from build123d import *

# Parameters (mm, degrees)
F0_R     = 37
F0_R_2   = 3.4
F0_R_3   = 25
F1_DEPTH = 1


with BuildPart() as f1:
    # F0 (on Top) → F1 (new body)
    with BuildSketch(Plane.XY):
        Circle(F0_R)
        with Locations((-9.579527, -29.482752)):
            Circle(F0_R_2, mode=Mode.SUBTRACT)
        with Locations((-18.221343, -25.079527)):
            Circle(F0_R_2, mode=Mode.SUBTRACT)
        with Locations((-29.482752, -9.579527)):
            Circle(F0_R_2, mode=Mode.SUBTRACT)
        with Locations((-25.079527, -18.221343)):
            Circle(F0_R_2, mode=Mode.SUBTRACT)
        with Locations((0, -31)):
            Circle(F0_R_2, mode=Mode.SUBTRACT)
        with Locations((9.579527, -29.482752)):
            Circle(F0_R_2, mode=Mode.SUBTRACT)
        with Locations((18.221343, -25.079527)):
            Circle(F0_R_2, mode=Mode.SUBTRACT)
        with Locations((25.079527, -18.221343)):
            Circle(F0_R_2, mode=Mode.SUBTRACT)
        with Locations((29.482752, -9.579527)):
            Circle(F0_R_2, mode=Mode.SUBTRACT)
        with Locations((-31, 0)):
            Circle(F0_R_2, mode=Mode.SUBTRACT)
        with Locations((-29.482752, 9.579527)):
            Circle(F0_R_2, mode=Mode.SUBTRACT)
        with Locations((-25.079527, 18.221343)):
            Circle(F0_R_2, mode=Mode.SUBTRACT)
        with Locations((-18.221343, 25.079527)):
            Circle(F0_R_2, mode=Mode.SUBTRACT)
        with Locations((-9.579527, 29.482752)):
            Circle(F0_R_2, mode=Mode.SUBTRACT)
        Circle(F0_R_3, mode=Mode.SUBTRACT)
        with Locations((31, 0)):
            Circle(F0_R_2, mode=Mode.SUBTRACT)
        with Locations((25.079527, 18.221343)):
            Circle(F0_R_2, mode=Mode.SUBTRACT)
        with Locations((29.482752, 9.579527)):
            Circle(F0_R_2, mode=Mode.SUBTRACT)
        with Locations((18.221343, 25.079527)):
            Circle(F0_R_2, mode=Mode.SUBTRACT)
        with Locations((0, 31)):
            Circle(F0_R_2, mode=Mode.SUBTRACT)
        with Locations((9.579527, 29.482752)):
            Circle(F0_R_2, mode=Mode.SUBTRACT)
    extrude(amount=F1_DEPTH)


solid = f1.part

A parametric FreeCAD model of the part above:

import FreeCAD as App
import Part
import Sketcher

V = App.Vector
Q = App.Units.Quantity

doc = App.newDocument("Part")
body = doc.addObject("PartDesign::Body", "Body")

# Sketch on XY plane
sketch1 = body.newObject("Sketcher::SketchObject", "Sketch")
sketch1.AttachmentSupport = (doc.getObject("XY_Plane"), [""])
sketch1.MapMode = "FlatFace"
sketch1.addGeometry([
    Part.Circle(V(0, 0, 0), V(0, 0, 1), 37),  # 0
    Part.Circle(V(-18.2, -25.1, 0), V(0, 0, 1), 3.4),  # 1
    Part.Circle(V(-25.1, -18.2, 0), V(0, 0, 1), 3.4),  # 2
    Part.Circle(V(-9.6, -29.5, 0), V(0, 0, 1), 3.4),  # 3
    Part.Circle(V(0, -31, 0), V(0, 0, 1), 3.4),  # 4
    Part.Circle(V(-29.5, -9.6, 0), V(0, 0, 1), 3.4),  # 5
    Part.Circle(V(9.6, -29.5, 0), V(0, 0, 1), 3.4),  # 6
    Part.Circle(V(18.2, -25.1, 0), V(0, 0, 1), 3.4),  # 7
    Part.Circle(V(25.1, -18.2, 0), V(0, 0, 1), 3.4),  # 8
    Part.Circle(V(29.5, -9.6, 0), V(0, 0, 1), 3.4),  # 9
    Part.Circle(V(-31, 0, 0), V(0, 0, 1), 3.4),  # 10
    Part.Circle(V(-29.5, 9.6, 0), V(0, 0, 1), 3.4),  # 11
    Part.Circle(V(0, 0, 0), V(0, 0, 1), 25),  # 12
    Part.Circle(V(-25.1, 18.2, 0), V(0, 0, 1), 3.4),  # 13
    Part.Circle(V(-18.2, 25.1, 0), V(0, 0, 1), 3.4),  # 14
    Part.Circle(V(-9.6, 29.5, 0), V(0, 0, 1), 3.4),  # 15
    Part.Circle(V(0, 31, 0), V(0, 0, 1), 3.4),  # 16
    Part.Circle(V(31, 0, 0), V(0, 0, 1), 3.4),  # 17
    Part.Circle(V(29.5, 9.6, 0), V(0, 0, 1), 3.4),  # 18
    Part.Circle(V(9.6, 29.5, 0), V(0, 0, 1), 3.4),  # 19
    Part.Circle(V(25.1, 18.2, 0), V(0, 0, 1), 3.4),  # 20
    Part.Circle(V(18.2, 25.1, 0), V(0, 0, 1), 3.4),  # 21
], False)
sketch1.addConstraint([
    Sketcher.Constraint("Coincident", 0, 3, -1, 1),
    Sketcher.Constraint("Coincident", 12, 3, -1, 1),
    Sketcher.Constraint("Equal", 1, 2),
    Sketcher.Constraint("Equal", 2, 3),
    Sketcher.Constraint("Equal", 3, 4),
    Sketcher.Constraint("Equal", 4, 5),
    Sketcher.Constraint("Equal", 5, 6),
    Sketcher.Constraint("Equal", 6, 7),
    Sketcher.Constraint("Equal", 7, 8),
    Sketcher.Constraint("Equal", 8, 9),
    Sketcher.Constraint("Equal", 9, 10),
    Sketcher.Constraint("Equal", 10, 11),
    Sketcher.Constraint("Equal", 11, 13),
    Sketcher.Constraint("Equal", 13, 14),
    Sketcher.Constraint("Equal", 14, 15),
    Sketcher.Constraint("Equal", 15, 16),
    Sketcher.Constraint("Equal", 16, 17),
    Sketcher.Constraint("Equal", 17, 18),
    Sketcher.Constraint("Equal", 18, 19),
    Sketcher.Constraint("Equal", 19, 20),
    Sketcher.Constraint("Equal", 20, 21),
    Sketcher.Constraint("Symmetric", 9, 3, 11, 3, -1, 1),
    Sketcher.Constraint("Symmetric", 8, 3, 13, 3, -1, 1),
    Sketcher.Constraint("Symmetric", 7, 3, 14, 3, -1, 1),
    Sketcher.Constraint("Symmetric", 6, 3, 15, 3, -1, 1),
    Sketcher.Constraint("Symmetric", 4, 3, 16, 3, -1, 1),
    Sketcher.Constraint("Symmetric", 10, 3, 17, 3, -1, 1),
    Sketcher.Constraint("Symmetric", 5, 3, 18, 3, -1, 1),
    Sketcher.Constraint("Symmetric", 3, 3, 19, 3, -1, 1),
    Sketcher.Constraint("Symmetric", 2, 3, 20, 3, -1, 1),
    Sketcher.Constraint("Symmetric", 1, 3, 21, 3, -1, 1),
    Sketcher.Constraint("Symmetric", 3, 3, 6, 3, -2),
    Sketcher.Constraint("Symmetric", 1, 3, 7, 3, -2),
    Sketcher.Constraint("Symmetric", 2, 3, 8, 3, -2),
    Sketcher.Constraint("Symmetric", 5, 3, 9, 3, -2),
    Sketcher.Constraint("PointOnObject", 4, 3, -2),
    Sketcher.Constraint("PointOnObject", 10, 3, -1),
    Sketcher.Constraint("Diameter", 0, Q("74 mm")),
    Sketcher.Constraint("Diameter", 12, Q("50 mm")),
    Sketcher.Constraint("Diameter", 1, Q("6.8 mm")),
    Sketcher.Constraint("DistanceY", 4, 3, -1, 1, Q("31 mm")),
    Sketcher.Constraint("DistanceX", 10, 3, -1, 1, Q("31 mm")),
    Sketcher.Constraint("DistanceX", 2, 3, 3, 3, Q("15.5 mm")),
    Sketcher.Constraint("DistanceY", 1, 3, 5, 3, Q("15.5 mm")),
    Sketcher.Constraint("DistanceY", 3, 3, 2, 3, Q("11.261409 mm")),
    Sketcher.Constraint("DistanceX", 5, 3, 1, 3, Q("11.261409 mm")),
    Sketcher.Constraint("DistanceX", 1, 3, 6, 3, Q("27.80087 mm")),
    Sketcher.Constraint("DistanceY", 2, 3, 11, 3, Q("27.80087 mm")),
    Sketcher.Constraint("DistanceX", 1, 3, -1, 1, Q("18.221343 mm")),
    Sketcher.Constraint("DistanceY", 1, 3, -1, 1, Q("25.079527 mm")),
])
pad1 = body.newObject("PartDesign::Pad", "Pad")
pad1.Profile = sketch1
pad1.Length = 1

doc.recompute()
